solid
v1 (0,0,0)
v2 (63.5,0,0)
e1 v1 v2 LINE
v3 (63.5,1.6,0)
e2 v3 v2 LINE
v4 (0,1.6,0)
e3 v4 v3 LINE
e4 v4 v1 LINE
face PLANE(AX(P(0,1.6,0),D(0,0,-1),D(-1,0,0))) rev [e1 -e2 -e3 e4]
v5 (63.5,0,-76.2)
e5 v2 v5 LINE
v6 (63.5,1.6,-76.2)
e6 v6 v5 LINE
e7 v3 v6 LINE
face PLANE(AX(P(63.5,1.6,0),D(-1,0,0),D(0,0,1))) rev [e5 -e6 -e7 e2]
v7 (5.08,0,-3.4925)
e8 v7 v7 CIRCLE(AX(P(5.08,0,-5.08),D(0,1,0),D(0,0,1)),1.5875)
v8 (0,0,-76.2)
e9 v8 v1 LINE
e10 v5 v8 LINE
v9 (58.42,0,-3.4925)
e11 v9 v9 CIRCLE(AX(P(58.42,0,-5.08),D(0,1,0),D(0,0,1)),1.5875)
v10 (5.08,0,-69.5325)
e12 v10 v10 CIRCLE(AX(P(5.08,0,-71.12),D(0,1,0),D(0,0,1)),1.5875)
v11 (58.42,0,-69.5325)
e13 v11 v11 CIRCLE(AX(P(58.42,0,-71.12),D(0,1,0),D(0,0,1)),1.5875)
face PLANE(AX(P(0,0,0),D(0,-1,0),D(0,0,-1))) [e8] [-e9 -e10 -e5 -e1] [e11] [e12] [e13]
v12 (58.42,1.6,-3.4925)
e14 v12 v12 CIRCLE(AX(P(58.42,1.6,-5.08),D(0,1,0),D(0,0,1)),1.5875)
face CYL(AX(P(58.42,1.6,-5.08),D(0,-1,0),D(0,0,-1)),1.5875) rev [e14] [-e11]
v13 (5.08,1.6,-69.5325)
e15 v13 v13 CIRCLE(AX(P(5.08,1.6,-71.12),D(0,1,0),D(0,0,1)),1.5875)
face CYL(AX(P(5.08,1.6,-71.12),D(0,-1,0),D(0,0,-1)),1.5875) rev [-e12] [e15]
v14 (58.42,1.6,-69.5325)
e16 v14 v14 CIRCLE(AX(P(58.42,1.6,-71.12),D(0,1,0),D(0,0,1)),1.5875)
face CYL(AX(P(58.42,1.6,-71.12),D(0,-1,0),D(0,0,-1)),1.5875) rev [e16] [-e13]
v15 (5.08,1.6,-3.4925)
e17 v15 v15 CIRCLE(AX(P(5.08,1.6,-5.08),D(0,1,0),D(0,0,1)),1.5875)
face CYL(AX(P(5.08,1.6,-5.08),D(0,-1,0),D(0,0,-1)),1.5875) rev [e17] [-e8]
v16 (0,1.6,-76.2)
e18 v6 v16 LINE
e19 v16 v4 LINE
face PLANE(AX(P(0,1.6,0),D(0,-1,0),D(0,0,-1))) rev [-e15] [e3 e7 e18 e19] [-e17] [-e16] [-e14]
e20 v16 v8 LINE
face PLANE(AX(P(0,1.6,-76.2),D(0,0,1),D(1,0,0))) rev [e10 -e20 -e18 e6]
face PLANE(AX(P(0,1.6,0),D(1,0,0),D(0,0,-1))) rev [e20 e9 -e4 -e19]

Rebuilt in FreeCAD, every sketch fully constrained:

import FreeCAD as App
import Part
import Sketcher
Q = App.Units.Quantity

doc = App.newDocument("Part")
body = doc.addObject("PartDesign::Body", "Body")

# Sketch on XZ plane
sketch1 = body.newObject("Sketcher::SketchObject", "Sketch")
sketch1.AttachmentSupport = (doc.getObject("XZ_Plane"), [""])
sketch1.MapMode = "FlatFace"
sketch1.addGeometry([
    Part.LineSegment(App.Vector(0, -76.2, 0), App.Vector(0, 0, 0)),  # 0
    Part.LineSegment(App.Vector(0, 0, 0), App.Vector(63.5, 0, 0)),  # 1
    Part.LineSegment(App.Vector(63.5, 0, 0), App.Vector(63.5, -76.2, 0)),  # 2
    Part.LineSegment(App.Vector(63.5, -76.2, 0), App.Vector(0, -76.2, 0)),  # 3
    Part.Circle(App.Vector(5.08, -5.08, 0), App.Vector(0, 0, 1), 1.5875),  # 4
    Part.Circle(App.Vector(58.42, -5.08, 0), App.Vector(0, 0, 1), 1.5875),  # 5
    Part.Circle(App.Vector(5.08, -71.12, 0), App.Vector(0, 0, 1), 1.5875),  # 6
    Part.Circle(App.Vector(58.42, -71.12, 0), App.Vector(0, 0, 1), 1.5875),  # 7
], False)
sketch1.addConstraint([
    Sketcher.Constraint("Coincident", 0, 2, 1, 1),
    Sketcher.Constraint("Coincident", 1, 2, 2, 1),
    Sketcher.Constraint("Coincident", 2, 2, 3, 1),
    Sketcher.Constraint("Coincident", 3, 2, 0, 1),
    Sketcher.Constraint("Vertical", 0),
    Sketcher.Constraint("Horizontal", 1),
    Sketcher.Constraint("Vertical", 2),
    Sketcher.Constraint("Horizontal", 3),
    Sketcher.Constraint("Coincident", 0, 2, -1, 1),
    Sketcher.Constraint("Equal", 4, 5),
    Sketcher.Constraint("Equal", 5, 6),
    Sketcher.Constraint("Equal", 6, 7),
    Sketcher.Constraint("Horizontal", 4, 3, 5, 3),
    Sketcher.Constraint("Horizontal", 6, 3, 7, 3),
    Sketcher.Constraint("Vertical", 4, 3, 6, 3),
    Sketcher.Constraint("Vertical", 5, 3, 7, 3),
    Sketcher.Constraint("DistanceY", 0, 1, 0, 2, Q("3 in")),
    Sketcher.Constraint("Diameter", 4, Q("0.125 in")),
    Sketcher.Constraint("DistanceX", 1, 1, 1, 2, Q("2.5 in")),
    Sketcher.Constraint("DistanceX", -1, 1, 4, 3, Q("0.2 in")),
    Sketcher.Constraint("DistanceY", 4, 3, -1, 1, Q("0.2 in")),
    Sketcher.Constraint("DistanceX", -1, 1, 5, 3, Q("2.3 in")),
    Sketcher.Constraint("DistanceY", 6, 3, -1, 1, Q("2.8 in")),
])
pad1 = body.newObject("PartDesign::Pad", "Pad")
pad1.Profile = sketch1
pad1.Length = 1.6
pad1.Reversed = True

doc.recompute()
